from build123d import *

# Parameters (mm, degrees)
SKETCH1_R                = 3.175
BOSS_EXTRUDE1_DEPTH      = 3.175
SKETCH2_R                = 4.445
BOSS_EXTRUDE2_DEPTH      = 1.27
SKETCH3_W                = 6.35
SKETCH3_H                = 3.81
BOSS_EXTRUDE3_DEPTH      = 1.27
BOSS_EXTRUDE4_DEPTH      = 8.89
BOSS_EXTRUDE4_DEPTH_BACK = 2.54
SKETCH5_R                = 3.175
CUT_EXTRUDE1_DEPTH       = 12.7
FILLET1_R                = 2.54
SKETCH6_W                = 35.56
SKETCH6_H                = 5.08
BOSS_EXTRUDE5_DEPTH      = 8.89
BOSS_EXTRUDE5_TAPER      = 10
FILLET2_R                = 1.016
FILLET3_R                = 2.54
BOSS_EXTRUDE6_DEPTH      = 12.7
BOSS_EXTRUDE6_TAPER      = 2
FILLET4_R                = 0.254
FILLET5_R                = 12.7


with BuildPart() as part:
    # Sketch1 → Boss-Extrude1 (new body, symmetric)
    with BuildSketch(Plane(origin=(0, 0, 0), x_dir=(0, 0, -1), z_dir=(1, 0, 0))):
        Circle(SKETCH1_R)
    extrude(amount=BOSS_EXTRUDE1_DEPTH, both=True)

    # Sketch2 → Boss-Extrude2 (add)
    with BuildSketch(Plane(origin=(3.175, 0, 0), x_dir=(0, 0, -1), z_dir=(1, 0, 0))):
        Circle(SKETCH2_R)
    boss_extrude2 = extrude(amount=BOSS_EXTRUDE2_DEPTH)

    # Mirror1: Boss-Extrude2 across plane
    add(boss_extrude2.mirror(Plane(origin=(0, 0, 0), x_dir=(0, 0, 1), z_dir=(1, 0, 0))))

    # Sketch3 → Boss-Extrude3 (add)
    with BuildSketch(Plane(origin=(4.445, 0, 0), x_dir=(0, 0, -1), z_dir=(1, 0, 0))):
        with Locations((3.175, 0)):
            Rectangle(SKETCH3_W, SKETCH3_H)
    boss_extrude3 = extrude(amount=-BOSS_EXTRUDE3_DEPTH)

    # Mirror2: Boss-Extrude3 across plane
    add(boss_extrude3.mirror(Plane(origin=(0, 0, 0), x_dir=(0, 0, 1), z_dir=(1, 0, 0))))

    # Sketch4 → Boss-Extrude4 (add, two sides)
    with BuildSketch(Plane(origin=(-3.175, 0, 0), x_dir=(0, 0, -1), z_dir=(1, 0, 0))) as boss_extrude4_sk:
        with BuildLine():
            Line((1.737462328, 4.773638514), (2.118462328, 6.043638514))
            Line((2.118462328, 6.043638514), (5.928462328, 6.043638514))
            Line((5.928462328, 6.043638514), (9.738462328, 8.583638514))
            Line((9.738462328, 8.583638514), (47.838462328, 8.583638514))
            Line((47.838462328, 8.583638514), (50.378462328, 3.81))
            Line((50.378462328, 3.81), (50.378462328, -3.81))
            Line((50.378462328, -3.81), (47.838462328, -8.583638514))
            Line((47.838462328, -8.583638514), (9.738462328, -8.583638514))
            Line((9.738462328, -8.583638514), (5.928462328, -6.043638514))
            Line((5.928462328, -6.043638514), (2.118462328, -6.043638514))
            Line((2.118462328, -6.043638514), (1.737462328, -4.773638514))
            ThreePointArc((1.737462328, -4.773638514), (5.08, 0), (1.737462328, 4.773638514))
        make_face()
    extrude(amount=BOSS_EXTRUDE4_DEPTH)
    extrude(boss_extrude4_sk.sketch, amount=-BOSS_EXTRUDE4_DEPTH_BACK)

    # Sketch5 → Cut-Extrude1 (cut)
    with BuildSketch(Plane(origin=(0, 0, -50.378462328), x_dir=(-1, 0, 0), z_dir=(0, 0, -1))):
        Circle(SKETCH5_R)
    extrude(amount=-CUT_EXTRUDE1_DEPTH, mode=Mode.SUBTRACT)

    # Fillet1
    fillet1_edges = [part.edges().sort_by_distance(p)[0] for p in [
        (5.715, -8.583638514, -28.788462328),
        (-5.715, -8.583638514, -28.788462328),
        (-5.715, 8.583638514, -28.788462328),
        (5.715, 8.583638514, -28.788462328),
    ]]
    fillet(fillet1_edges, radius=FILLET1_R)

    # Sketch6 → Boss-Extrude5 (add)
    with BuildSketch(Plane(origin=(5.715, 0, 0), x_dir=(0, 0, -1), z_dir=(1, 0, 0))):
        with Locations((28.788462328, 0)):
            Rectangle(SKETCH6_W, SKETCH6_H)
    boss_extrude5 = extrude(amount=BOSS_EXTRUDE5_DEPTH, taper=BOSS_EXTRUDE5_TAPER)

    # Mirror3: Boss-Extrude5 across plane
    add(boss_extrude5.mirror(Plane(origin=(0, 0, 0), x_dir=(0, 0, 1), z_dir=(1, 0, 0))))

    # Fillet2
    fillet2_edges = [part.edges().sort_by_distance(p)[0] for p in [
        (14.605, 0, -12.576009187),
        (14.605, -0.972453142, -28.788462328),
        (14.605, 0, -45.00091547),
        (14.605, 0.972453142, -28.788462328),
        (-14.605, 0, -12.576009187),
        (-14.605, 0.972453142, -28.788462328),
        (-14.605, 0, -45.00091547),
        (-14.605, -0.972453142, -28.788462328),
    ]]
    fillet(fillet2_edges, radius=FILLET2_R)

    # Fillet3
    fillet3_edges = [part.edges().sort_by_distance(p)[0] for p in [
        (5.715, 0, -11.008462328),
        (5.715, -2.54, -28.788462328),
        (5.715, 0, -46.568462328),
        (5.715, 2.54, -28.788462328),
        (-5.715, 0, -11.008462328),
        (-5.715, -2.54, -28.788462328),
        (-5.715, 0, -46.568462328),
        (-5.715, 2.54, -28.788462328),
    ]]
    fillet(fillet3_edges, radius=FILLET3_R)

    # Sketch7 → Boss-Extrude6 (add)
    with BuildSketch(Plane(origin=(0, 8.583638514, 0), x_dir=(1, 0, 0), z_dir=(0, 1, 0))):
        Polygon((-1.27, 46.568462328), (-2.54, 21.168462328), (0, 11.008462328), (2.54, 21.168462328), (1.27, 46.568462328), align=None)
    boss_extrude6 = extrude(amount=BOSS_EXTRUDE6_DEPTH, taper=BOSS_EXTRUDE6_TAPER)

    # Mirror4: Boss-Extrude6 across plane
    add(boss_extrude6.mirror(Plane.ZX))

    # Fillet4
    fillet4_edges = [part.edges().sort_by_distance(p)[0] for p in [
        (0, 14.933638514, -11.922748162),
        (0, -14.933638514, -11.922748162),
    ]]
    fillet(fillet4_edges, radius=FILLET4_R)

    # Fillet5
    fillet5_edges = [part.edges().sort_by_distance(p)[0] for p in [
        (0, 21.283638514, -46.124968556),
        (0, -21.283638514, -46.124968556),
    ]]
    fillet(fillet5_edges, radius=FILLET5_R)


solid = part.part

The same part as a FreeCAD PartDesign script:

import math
import FreeCAD as App
import Part
import Sketcher
Q = App.Units.Quantity


def edges_at(feature, points):
    """Names of the edges that pass closest to the given points."""
    edges = feature.Shape.Edges
    near = lambda p: min(range(len(edges)), key=lambda i: edges[i].distToShape(Part.Vertex(*p))[0])
    return sorted({f"Edge{near(p) + 1}" for p in points})

doc = App.newDocument("Part")
body = doc.addObject("PartDesign::Body", "Body")

# Sketch on YZ plane
sketch1 = doc.addObject("Sketcher::SketchObject", "Sketch")
body.addObject(sketch1)
sketch1.AttachmentSupport = (doc.YZ_Plane, [""])
sketch1.MapMode = "FlatFace"
sketch1.addGeometry(Part.Circle(App.Vector(0, 0, 0), App.Vector(0, 0, 1), 3.2), False)
sketch1.addConstraint([
    Sketcher.Constraint("Coincident", 0, 3, -1, 1),
    Sketcher.Constraint("Diameter", 0, Q("0.25 in")),
])
pad1 = doc.addObject("PartDesign::Pad", "Pad")
body.addObject(pad1)
pad1.Profile = sketch1
pad1.Length = Q("0.25 in")
pad1.Midplane = True

# Sketch on YZ plane
sketch2 = doc.addObject("Sketcher::SketchObject", "Sketch001")
body.addObject(sketch2)
sketch2.AttachmentSupport = (doc.YZ_Plane, [""])
sketch2.MapMode = "FlatFace"
sketch2.AttachmentOffset = App.Placement(App.Vector(0, 0, 0.125 * 25.4), App.Rotation())
sketch2.addGeometry(Part.Circle(App.Vector(0, 0, 0), App.Vector(0, 0, 1), 4.4), False)
sketch2.addConstraint([
    Sketcher.Constraint("Coincident", 0, 3, -1, 1),
    Sketcher.Constraint("Diameter", 0, Q("0.35 in")),
])
pad2 = doc.addObject("PartDesign::Pad", "Pad001")
body.addObject(pad2)
pad2.Profile = sketch2
pad2.Length = Q("0.05 in")
doc.recompute()

mirrored = doc.addObject("PartDesign::Mirrored", "Mirrored")
body.addObject(mirrored)
mirrored.Originals = [pad2]
mirrored.MirrorPlane = (doc.YZ_Plane, [""])
body.Tip = mirrored

# Sketch on YZ plane
sketch3 = doc.addObject("Sketcher::SketchObject", "Sketch002")
body.addObject(sketch3)
sketch3.AttachmentSupport = (doc.YZ_Plane, [""])
sketch3.MapMode = "FlatFace"
sketch3.AttachmentOffset = App.Placement(App.Vector(0, 0, 0.175 * 25.4), App.Rotation())
sketch3.addGeometry([
    Part.LineSegment(App.Vector(1.9, 0, 0), App.Vector(-1.9, 0, 0)),
    Part.LineSegment(App.Vector(-1.9, 0, 0), App.Vector(-1.9, -6.3, 0)),
    Part.LineSegment(App.Vector(-1.9, -6.3, 0), App.Vector(1.9, -6.3, 0)),
    Part.LineSegment(App.Vector(1.9, -6.3, 0), App.Vector(1.9, 0, 0)),
], False)
sketch3.addConstraint([
    Sketcher.Constraint("Coincident", 0, 2, 1, 1),
    Sketcher.Constraint("Coincident", 1, 2, 2, 1),
    Sketcher.Constraint("Coincident", 2, 2, 3, 1),
    Sketcher.Constraint("Coincident", 3, 2, 0, 1),
    Sketcher.Constraint("Horizontal", 0),
    Sketcher.Constraint("Vertical", 1),
    Sketcher.Constraint("Horizontal", 2),
    Sketcher.Constraint("Vertical", 3),
    Sketcher.Constraint("Symmetric", 0, 2, 3, 2, -1, 1),
    Sketcher.Constraint("DistanceX", 0, 2, 0, 1, Q("0.15 in")),
    Sketcher.Constraint("DistanceY", 1, 2, 1, 1, Q("0.25 in")),
])
pad3 = doc.addObject("PartDesign::Pad", "Pad002")
body.addObject(pad3)
pad3.Profile = sketch3
pad3.Length = Q("0.05 in")
pad3.Reversed = True
doc.recompute()

mirrored2 = doc.addObject("PartDesign::Mirrored", "Mirrored001")
body.addObject(mirrored2)
mirrored2.Originals = [pad3]
mirrored2.MirrorPlane = (doc.YZ_Plane, [""])
body.Tip = mirrored2

# Sketch on YZ plane
sketch4 = doc.addObject("Sketcher::SketchObject", "Sketch003")
body.addObject(sketch4)
sketch4.AttachmentSupport = (doc.YZ_Plane, [""])
sketch4.MapMode = "FlatFace"
sketch4.AttachmentOffset = App.Placement(App.Vector(0, 0, -0.125 * 25.4), App.Rotation())
sketch4.addGeometry([
    Part.LineSegment(App.Vector(6, -2.1, 0), App.Vector(4.8, -1.7, 0)),  # 0
    Part.ArcOfCircle(Part.Circle(App.Vector(0, 0, 0), App.Vector(0, 0, 1), 5.1), math.radians(-160), math.radians(-20)),  # 1
    Part.LineSegment(App.Vector(-4.8, -1.7, 0), App.Vector(-6, -2.1, 0)),  # 2
    Part.LineSegment(App.Vector(-6, -2.1, 0), App.Vector(-6, -5.9, 0)),  # 3
    Part.LineSegment(App.Vector(-6, -5.9, 0), App.Vector(-8.6, -9.7, 0)),  # 4
    Part.LineSegment(App.Vector(-8.6, -9.7, 0), App.Vector(-8.6, -47.8, 0)),  # 5
    Part.LineSegment(App.Vector(-8.6, -47.8, 0), App.Vector(-3.8, -50.4, 0)),  # 6
    Part.LineSegment(App.Vector(-3.8, -50.4, 0), App.Vector(3.8, -50.4, 0)),  # 7
    Part.LineSegment(App.Vector(3.8, -50.4, 0), App.Vector(8.6, -47.8, 0)),  # 8
    Part.LineSegment(App.Vector(8.6, -47.8, 0), App.Vector(8.6, -9.7, 0)),  # 9
    Part.LineSegment(App.Vector(8.6, -9.7, 0), App.Vector(6, -5.9, 0)),  # 10
    Part.LineSegment(App.Vector(6, -5.9, 0), App.Vector(6, -2.1, 0)),  # 11
], False)
sketch4.addConstraint([
    Sketcher.Constraint("Coincident", 0, 2, 1, 2),
    Sketcher.Constraint("Coincident", 1, 1, 2, 1),
    Sketcher.Constraint("Coincident", 2, 2, 3, 1),
    Sketcher.Constraint("Coincident", 3, 2, 4, 1),
    Sketcher.Constraint("Coincident", 4, 2, 5, 1),
    Sketcher.Constraint("Coincident", 5, 2, 6, 1),
    Sketcher.Constraint("Coincident", 6, 2, 7, 1),
    Sketcher.Constraint("Coincident", 7, 2, 8, 1),
    Sketcher.Constraint("Coincident", 8, 2, 9, 1),
    Sketcher.Constraint("Coincident", 9, 2, 10, 1),
    Sketcher.Constraint("Coincident", 10, 2, 11, 1),
    Sketcher.Constraint("Coincident", 11, 2, 0, 1),
    Sketcher.Constraint("Vertical", 3),
    Sketcher.Constraint("Vertical", 5),
    Sketcher.Constraint("Horizontal", 7),
    Sketcher.Constraint("Vertical", 9),
    Sketcher.Constraint("Vertical", 11),
    Sketcher.Constraint("Coincident", 1, 3, -1, 1),
    Sketcher.Constraint("Symmetric", 5, 2, 8, 2, -2),
    Sketcher.Constraint("Symmetric", 3, 2, 10, 2, -2),
    Sketcher.Constraint("Horizontal", 0, 2, 1, 1),
    Sketcher.Constraint("Horizontal", 4, 2, 9, 2),
    Sketcher.Constraint("Horizontal", 2, 2, 11, 2),
    Sketcher.Constraint("Equal", 6, 8),
    Sketcher.Constraint("Radius", 1, Q("0.2 in")),
    Sketcher.Constraint("DistanceX", 7, 1, 7, 2, Q("0.3 in")),
    Sketcher.Constraint("DistanceY", 5, 2, 5, 1, Q("1.5 in")),
    Sketcher.Constraint("DistanceY", 3, 2, 3, 1, Q("0.15 in")),
    Sketcher.Constraint("DistanceX", 4, 2, 3, 2, Q("0.1 in")),
    Sketcher.Constraint("DistanceY", 4, 2, 2, 2, Q("0.3 in")),
    Sketcher.Constraint("DistanceY", 6, 2, 5, 2, Q("0.1 in")),
    Sketcher.Constraint("DistanceX", 2, 2, 1, 1, Q("0.05 in")),
    Sketcher.Constraint("DistanceY", 2, 2, 1, 1, Q("0.015 in")),
    Sketcher.Constraint("Distance", 6, Q("5.407331 mm")),
])
pad4 = doc.addObject("PartDesign::Pad", "Pad003")
body.addObject(pad4)
pad4.Profile = sketch4
pad4.Type = "TwoLengths"
pad4.Length = Q("0.35 in")
pad4.Length2 = Q("0.1 in")

# Sketch on XY plane
sketch5 = doc.addObject("Sketcher::SketchObject", "Sketch004")
body.addObject(sketch5)
sketch5.AttachmentSupport = (doc.XY_Plane, [""])
sketch5.MapMode = "FlatFace"
sketch5.AttachmentOffset = App.Placement(App.Vector(0, 0, -50.378462), App.Rotation())
sketch5.addGeometry(Part.Circle(App.Vector(0, 0, 0), App.Vector(0, 0, 1), 3.2), False)
sketch5.addConstraint([
    Sketcher.Constraint("Coincident", 0, 3, -1, 1),
    Sketcher.Constraint("Diameter", 0, Q("0.25 in")),
])
pocket1 = doc.addObject("PartDesign::Pocket", "Pocket")
body.addObject(pocket1)
pocket1.Profile = sketch5
pocket1.Length = Q("0.5 in")
pocket1.Reversed = True
doc.recompute()

fillet = doc.addObject("PartDesign::Fillet", "Fillet")
body.addObject(fillet)
fillet.Base = (pocket1, edges_at(pocket1, [
    (5.715, -8.584, -28.788),
    (-5.715, -8.584, -28.788),
    (-5.715, 8.584, -28.788),
    (5.715, 8.584, -28.788),
]))
fillet.Radius = Q("0.1 in")

# Sketch on YZ plane
sketch6 = doc.addObject("Sketcher::SketchObject", "Sketch005")
body.addObject(sketch6)
sketch6.AttachmentSupport = (doc.YZ_Plane, [""])
sketch6.MapMode = "FlatFace"
sketch6.AttachmentOffset = App.Placement(App.Vector(0, 0, 0.225 * 25.4), App.Rotation())
sketch6.addGeometry([
    Part.LineSegment(App.Vector(3, -11, 0), App.Vector(-3, -11, 0)),
    Part.LineSegment(App.Vector(-3, -11, 0), App.Vector(-3, -47, 0)),
    Part.LineSegment(App.Vector(-3, -47, 0), App.Vector(3, -47, 0)),
    Part.LineSegment(App.Vector(3, -47, 0), App.Vector(3, -11, 0)),
], False)
sketch6.addConstraint([
    Sketcher.Constraint("Coincident", 0, 2, 1, 1),
    Sketcher.Constraint("Coincident", 1, 2, 2, 1),
    Sketcher.Constraint("Coincident", 2, 2, 3, 1),
    Sketcher.Constraint("Coincident", 3, 2, 0, 1),
    Sketcher.Constraint("Horizontal", 0),
    Sketcher.Constraint("Vertical", 1),
    Sketcher.Constraint("Horizontal", 2),
    Sketcher.Constraint("Vertical", 3),
    Sketcher.Constraint("DistanceX", 0, 2, 0, 1, Q("0.2 in")),
    Sketcher.Constraint("DistanceY", 1, 2, 1, 1, Q("1.4 in")),
    Sketcher.Constraint("DistanceX", 0, 2, -1, 1, Q("0.1 in")),
    Sketcher.Constraint("DistanceY", 0, 2, -1, 1, Q("11.008462 mm")),
])
pad5 = doc.addObject("PartDesign::Pad", "Pad004")
body.addObject(pad5)
pad5.Profile = sketch6
pad5.Length = Q("0.35 in")
pad5.TaperAngle = -10
doc.recompute()

mirrored3 = doc.addObject("PartDesign::Mirrored", "Mirrored002")
body.addObject(mirrored3)
mirrored3.Originals = [pad5]
mirrored3.MirrorPlane = (doc.YZ_Plane, [""])
body.Tip = mirrored3
doc.recompute()

fillet2 = doc.addObject("PartDesign::Fillet", "Fillet001")
body.addObject(fillet2)
fillet2.Base = (mirrored3, edges_at(mirrored3, [
    (14.605, 0, -12.576),
    (14.605, -0.972, -28.788),
    (14.605, 0, -45.001),
    (14.605, 0.972, -28.788),
    (-14.605, 0, -12.576),
    (-14.605, 0.972, -28.788),
    (-14.605, 0, -45.001),
    (-14.605, -0.972, -28.788),
]))
fillet2.Radius = Q("0.04 in")
doc.recompute()

fillet3 = doc.addObject("PartDesign::Fillet", "Fillet002")
body.addObject(fillet3)
fillet3.Base = (fillet2, edges_at(fillet2, [
    (5.715, 0, -11.008),
    (5.715, -2.54, -28.788),
    (5.715, 0, -46.568),
    (5.715, 2.54, -28.788),
    (-5.715, 0, -11.008),
    (-5.715, -2.54, -28.788),
    (-5.715, 0, -46.568),
    (-5.715, 2.54, -28.788),
]))
fillet3.Radius = Q("0.1 in")

# Sketch on XZ plane
sketch7 = doc.addObject("Sketcher::SketchObject", "Sketch006")
body.addObject(sketch7)
sketch7.AttachmentSupport = (doc.XZ_Plane, [""])
sketch7.MapMode = "FlatFace"
sketch7.AttachmentOffset = App.Placement(App.Vector(0, 0, -8.583639), App.Rotation())
sketch7.addGeometry([
    Part.LineSegment(App.Vector(-1.3, -46.6, 0), App.Vector(-2.5, -21.2, 0)),  # 0
    Part.LineSegment(App.Vector(-2.5, -21.2, 0), App.Vector(0, -11, 0)),  # 1
    Part.LineSegment(App.Vector(0, -11, 0), App.Vector(2.5, -21.2, 0)),  # 2
    Part.LineSegment(App.Vector(2.5, -21.2, 0), App.Vector(1.3, -46.6, 0)),  # 3
    Part.LineSegment(App.Vector(1.3, -46.6, 0), App.Vector(-1.3, -46.6, 0)),  # 4
], False)
sketch7.addConstraint([
    Sketcher.Constraint("Coincident", 0, 2, 1, 1),
    Sketcher.Constraint("Coincident", 1, 2, 2, 1),
    Sketcher.Constraint("Coincident", 2, 2, 3, 1),
    Sketcher.Constraint("Coincident", 3, 2, 4, 1),
    Sketcher.Constraint("Coincident", 4, 2, 0, 1),
    Sketcher.Constraint("Horizontal", 4),
    Sketcher.Constraint("Symmetric", 0, 2, 2, 2, -2),
    Sketcher.Constraint("PointOnObject", 1, 2, -2),
    Sketcher.Constraint("Equal", 0, 3),
    Sketcher.Constraint("DistanceX", 4, 2, 4, 1, Q("0.1 in")),
    Sketcher.Constraint("DistanceY", 3, 2, 2, 2, Q("1 in")),
    Sketcher.Constraint("DistanceX", 0, 2, -1, 1, Q("0.1 in")),
    Sketcher.Constraint("DistanceY", 0, 2, 1, 2, Q("0.4 in")),
    Sketcher.Constraint("DistanceY", 0, 2, -1, 1, Q("21.168462 mm")),
])
pad6 = doc.addObject("PartDesign::Pad", "Pad005")
body.addObject(pad6)
pad6.Profile = sketch7
pad6.Length = Q("0.5 in")
pad6.Reversed = True
pad6.TaperAngle = -2
doc.recompute()

mirrored4 = doc.addObject("PartDesign::Mirrored", "Mirrored003")
body.addObject(mirrored4)
mirrored4.Originals = [pad6]
mirrored4.MirrorPlane = (doc.XZ_Plane, [""])
body.Tip = mirrored4
doc.recompute()

fillet4 = doc.addObject("PartDesign::Fillet", "Fillet003")
body.addObject(fillet4)
fillet4.Base = (mirrored4, edges_at(mirrored4, [(0, 14.934, -11.923), (0, -14.934, -11.923)]))
fillet4.Radius = Q("0.01 in")
doc.recompute()

fillet5 = doc.addObject("PartDesign::Fillet", "Fillet004")
body.addObject(fillet5)
fillet5.Base = (fillet4, edges_at(fillet4, [(0, 21.284, -46.125), (0, -21.284, -46.125)]))
fillet5.Radius = Q("0.5 in")

doc.recompute()
